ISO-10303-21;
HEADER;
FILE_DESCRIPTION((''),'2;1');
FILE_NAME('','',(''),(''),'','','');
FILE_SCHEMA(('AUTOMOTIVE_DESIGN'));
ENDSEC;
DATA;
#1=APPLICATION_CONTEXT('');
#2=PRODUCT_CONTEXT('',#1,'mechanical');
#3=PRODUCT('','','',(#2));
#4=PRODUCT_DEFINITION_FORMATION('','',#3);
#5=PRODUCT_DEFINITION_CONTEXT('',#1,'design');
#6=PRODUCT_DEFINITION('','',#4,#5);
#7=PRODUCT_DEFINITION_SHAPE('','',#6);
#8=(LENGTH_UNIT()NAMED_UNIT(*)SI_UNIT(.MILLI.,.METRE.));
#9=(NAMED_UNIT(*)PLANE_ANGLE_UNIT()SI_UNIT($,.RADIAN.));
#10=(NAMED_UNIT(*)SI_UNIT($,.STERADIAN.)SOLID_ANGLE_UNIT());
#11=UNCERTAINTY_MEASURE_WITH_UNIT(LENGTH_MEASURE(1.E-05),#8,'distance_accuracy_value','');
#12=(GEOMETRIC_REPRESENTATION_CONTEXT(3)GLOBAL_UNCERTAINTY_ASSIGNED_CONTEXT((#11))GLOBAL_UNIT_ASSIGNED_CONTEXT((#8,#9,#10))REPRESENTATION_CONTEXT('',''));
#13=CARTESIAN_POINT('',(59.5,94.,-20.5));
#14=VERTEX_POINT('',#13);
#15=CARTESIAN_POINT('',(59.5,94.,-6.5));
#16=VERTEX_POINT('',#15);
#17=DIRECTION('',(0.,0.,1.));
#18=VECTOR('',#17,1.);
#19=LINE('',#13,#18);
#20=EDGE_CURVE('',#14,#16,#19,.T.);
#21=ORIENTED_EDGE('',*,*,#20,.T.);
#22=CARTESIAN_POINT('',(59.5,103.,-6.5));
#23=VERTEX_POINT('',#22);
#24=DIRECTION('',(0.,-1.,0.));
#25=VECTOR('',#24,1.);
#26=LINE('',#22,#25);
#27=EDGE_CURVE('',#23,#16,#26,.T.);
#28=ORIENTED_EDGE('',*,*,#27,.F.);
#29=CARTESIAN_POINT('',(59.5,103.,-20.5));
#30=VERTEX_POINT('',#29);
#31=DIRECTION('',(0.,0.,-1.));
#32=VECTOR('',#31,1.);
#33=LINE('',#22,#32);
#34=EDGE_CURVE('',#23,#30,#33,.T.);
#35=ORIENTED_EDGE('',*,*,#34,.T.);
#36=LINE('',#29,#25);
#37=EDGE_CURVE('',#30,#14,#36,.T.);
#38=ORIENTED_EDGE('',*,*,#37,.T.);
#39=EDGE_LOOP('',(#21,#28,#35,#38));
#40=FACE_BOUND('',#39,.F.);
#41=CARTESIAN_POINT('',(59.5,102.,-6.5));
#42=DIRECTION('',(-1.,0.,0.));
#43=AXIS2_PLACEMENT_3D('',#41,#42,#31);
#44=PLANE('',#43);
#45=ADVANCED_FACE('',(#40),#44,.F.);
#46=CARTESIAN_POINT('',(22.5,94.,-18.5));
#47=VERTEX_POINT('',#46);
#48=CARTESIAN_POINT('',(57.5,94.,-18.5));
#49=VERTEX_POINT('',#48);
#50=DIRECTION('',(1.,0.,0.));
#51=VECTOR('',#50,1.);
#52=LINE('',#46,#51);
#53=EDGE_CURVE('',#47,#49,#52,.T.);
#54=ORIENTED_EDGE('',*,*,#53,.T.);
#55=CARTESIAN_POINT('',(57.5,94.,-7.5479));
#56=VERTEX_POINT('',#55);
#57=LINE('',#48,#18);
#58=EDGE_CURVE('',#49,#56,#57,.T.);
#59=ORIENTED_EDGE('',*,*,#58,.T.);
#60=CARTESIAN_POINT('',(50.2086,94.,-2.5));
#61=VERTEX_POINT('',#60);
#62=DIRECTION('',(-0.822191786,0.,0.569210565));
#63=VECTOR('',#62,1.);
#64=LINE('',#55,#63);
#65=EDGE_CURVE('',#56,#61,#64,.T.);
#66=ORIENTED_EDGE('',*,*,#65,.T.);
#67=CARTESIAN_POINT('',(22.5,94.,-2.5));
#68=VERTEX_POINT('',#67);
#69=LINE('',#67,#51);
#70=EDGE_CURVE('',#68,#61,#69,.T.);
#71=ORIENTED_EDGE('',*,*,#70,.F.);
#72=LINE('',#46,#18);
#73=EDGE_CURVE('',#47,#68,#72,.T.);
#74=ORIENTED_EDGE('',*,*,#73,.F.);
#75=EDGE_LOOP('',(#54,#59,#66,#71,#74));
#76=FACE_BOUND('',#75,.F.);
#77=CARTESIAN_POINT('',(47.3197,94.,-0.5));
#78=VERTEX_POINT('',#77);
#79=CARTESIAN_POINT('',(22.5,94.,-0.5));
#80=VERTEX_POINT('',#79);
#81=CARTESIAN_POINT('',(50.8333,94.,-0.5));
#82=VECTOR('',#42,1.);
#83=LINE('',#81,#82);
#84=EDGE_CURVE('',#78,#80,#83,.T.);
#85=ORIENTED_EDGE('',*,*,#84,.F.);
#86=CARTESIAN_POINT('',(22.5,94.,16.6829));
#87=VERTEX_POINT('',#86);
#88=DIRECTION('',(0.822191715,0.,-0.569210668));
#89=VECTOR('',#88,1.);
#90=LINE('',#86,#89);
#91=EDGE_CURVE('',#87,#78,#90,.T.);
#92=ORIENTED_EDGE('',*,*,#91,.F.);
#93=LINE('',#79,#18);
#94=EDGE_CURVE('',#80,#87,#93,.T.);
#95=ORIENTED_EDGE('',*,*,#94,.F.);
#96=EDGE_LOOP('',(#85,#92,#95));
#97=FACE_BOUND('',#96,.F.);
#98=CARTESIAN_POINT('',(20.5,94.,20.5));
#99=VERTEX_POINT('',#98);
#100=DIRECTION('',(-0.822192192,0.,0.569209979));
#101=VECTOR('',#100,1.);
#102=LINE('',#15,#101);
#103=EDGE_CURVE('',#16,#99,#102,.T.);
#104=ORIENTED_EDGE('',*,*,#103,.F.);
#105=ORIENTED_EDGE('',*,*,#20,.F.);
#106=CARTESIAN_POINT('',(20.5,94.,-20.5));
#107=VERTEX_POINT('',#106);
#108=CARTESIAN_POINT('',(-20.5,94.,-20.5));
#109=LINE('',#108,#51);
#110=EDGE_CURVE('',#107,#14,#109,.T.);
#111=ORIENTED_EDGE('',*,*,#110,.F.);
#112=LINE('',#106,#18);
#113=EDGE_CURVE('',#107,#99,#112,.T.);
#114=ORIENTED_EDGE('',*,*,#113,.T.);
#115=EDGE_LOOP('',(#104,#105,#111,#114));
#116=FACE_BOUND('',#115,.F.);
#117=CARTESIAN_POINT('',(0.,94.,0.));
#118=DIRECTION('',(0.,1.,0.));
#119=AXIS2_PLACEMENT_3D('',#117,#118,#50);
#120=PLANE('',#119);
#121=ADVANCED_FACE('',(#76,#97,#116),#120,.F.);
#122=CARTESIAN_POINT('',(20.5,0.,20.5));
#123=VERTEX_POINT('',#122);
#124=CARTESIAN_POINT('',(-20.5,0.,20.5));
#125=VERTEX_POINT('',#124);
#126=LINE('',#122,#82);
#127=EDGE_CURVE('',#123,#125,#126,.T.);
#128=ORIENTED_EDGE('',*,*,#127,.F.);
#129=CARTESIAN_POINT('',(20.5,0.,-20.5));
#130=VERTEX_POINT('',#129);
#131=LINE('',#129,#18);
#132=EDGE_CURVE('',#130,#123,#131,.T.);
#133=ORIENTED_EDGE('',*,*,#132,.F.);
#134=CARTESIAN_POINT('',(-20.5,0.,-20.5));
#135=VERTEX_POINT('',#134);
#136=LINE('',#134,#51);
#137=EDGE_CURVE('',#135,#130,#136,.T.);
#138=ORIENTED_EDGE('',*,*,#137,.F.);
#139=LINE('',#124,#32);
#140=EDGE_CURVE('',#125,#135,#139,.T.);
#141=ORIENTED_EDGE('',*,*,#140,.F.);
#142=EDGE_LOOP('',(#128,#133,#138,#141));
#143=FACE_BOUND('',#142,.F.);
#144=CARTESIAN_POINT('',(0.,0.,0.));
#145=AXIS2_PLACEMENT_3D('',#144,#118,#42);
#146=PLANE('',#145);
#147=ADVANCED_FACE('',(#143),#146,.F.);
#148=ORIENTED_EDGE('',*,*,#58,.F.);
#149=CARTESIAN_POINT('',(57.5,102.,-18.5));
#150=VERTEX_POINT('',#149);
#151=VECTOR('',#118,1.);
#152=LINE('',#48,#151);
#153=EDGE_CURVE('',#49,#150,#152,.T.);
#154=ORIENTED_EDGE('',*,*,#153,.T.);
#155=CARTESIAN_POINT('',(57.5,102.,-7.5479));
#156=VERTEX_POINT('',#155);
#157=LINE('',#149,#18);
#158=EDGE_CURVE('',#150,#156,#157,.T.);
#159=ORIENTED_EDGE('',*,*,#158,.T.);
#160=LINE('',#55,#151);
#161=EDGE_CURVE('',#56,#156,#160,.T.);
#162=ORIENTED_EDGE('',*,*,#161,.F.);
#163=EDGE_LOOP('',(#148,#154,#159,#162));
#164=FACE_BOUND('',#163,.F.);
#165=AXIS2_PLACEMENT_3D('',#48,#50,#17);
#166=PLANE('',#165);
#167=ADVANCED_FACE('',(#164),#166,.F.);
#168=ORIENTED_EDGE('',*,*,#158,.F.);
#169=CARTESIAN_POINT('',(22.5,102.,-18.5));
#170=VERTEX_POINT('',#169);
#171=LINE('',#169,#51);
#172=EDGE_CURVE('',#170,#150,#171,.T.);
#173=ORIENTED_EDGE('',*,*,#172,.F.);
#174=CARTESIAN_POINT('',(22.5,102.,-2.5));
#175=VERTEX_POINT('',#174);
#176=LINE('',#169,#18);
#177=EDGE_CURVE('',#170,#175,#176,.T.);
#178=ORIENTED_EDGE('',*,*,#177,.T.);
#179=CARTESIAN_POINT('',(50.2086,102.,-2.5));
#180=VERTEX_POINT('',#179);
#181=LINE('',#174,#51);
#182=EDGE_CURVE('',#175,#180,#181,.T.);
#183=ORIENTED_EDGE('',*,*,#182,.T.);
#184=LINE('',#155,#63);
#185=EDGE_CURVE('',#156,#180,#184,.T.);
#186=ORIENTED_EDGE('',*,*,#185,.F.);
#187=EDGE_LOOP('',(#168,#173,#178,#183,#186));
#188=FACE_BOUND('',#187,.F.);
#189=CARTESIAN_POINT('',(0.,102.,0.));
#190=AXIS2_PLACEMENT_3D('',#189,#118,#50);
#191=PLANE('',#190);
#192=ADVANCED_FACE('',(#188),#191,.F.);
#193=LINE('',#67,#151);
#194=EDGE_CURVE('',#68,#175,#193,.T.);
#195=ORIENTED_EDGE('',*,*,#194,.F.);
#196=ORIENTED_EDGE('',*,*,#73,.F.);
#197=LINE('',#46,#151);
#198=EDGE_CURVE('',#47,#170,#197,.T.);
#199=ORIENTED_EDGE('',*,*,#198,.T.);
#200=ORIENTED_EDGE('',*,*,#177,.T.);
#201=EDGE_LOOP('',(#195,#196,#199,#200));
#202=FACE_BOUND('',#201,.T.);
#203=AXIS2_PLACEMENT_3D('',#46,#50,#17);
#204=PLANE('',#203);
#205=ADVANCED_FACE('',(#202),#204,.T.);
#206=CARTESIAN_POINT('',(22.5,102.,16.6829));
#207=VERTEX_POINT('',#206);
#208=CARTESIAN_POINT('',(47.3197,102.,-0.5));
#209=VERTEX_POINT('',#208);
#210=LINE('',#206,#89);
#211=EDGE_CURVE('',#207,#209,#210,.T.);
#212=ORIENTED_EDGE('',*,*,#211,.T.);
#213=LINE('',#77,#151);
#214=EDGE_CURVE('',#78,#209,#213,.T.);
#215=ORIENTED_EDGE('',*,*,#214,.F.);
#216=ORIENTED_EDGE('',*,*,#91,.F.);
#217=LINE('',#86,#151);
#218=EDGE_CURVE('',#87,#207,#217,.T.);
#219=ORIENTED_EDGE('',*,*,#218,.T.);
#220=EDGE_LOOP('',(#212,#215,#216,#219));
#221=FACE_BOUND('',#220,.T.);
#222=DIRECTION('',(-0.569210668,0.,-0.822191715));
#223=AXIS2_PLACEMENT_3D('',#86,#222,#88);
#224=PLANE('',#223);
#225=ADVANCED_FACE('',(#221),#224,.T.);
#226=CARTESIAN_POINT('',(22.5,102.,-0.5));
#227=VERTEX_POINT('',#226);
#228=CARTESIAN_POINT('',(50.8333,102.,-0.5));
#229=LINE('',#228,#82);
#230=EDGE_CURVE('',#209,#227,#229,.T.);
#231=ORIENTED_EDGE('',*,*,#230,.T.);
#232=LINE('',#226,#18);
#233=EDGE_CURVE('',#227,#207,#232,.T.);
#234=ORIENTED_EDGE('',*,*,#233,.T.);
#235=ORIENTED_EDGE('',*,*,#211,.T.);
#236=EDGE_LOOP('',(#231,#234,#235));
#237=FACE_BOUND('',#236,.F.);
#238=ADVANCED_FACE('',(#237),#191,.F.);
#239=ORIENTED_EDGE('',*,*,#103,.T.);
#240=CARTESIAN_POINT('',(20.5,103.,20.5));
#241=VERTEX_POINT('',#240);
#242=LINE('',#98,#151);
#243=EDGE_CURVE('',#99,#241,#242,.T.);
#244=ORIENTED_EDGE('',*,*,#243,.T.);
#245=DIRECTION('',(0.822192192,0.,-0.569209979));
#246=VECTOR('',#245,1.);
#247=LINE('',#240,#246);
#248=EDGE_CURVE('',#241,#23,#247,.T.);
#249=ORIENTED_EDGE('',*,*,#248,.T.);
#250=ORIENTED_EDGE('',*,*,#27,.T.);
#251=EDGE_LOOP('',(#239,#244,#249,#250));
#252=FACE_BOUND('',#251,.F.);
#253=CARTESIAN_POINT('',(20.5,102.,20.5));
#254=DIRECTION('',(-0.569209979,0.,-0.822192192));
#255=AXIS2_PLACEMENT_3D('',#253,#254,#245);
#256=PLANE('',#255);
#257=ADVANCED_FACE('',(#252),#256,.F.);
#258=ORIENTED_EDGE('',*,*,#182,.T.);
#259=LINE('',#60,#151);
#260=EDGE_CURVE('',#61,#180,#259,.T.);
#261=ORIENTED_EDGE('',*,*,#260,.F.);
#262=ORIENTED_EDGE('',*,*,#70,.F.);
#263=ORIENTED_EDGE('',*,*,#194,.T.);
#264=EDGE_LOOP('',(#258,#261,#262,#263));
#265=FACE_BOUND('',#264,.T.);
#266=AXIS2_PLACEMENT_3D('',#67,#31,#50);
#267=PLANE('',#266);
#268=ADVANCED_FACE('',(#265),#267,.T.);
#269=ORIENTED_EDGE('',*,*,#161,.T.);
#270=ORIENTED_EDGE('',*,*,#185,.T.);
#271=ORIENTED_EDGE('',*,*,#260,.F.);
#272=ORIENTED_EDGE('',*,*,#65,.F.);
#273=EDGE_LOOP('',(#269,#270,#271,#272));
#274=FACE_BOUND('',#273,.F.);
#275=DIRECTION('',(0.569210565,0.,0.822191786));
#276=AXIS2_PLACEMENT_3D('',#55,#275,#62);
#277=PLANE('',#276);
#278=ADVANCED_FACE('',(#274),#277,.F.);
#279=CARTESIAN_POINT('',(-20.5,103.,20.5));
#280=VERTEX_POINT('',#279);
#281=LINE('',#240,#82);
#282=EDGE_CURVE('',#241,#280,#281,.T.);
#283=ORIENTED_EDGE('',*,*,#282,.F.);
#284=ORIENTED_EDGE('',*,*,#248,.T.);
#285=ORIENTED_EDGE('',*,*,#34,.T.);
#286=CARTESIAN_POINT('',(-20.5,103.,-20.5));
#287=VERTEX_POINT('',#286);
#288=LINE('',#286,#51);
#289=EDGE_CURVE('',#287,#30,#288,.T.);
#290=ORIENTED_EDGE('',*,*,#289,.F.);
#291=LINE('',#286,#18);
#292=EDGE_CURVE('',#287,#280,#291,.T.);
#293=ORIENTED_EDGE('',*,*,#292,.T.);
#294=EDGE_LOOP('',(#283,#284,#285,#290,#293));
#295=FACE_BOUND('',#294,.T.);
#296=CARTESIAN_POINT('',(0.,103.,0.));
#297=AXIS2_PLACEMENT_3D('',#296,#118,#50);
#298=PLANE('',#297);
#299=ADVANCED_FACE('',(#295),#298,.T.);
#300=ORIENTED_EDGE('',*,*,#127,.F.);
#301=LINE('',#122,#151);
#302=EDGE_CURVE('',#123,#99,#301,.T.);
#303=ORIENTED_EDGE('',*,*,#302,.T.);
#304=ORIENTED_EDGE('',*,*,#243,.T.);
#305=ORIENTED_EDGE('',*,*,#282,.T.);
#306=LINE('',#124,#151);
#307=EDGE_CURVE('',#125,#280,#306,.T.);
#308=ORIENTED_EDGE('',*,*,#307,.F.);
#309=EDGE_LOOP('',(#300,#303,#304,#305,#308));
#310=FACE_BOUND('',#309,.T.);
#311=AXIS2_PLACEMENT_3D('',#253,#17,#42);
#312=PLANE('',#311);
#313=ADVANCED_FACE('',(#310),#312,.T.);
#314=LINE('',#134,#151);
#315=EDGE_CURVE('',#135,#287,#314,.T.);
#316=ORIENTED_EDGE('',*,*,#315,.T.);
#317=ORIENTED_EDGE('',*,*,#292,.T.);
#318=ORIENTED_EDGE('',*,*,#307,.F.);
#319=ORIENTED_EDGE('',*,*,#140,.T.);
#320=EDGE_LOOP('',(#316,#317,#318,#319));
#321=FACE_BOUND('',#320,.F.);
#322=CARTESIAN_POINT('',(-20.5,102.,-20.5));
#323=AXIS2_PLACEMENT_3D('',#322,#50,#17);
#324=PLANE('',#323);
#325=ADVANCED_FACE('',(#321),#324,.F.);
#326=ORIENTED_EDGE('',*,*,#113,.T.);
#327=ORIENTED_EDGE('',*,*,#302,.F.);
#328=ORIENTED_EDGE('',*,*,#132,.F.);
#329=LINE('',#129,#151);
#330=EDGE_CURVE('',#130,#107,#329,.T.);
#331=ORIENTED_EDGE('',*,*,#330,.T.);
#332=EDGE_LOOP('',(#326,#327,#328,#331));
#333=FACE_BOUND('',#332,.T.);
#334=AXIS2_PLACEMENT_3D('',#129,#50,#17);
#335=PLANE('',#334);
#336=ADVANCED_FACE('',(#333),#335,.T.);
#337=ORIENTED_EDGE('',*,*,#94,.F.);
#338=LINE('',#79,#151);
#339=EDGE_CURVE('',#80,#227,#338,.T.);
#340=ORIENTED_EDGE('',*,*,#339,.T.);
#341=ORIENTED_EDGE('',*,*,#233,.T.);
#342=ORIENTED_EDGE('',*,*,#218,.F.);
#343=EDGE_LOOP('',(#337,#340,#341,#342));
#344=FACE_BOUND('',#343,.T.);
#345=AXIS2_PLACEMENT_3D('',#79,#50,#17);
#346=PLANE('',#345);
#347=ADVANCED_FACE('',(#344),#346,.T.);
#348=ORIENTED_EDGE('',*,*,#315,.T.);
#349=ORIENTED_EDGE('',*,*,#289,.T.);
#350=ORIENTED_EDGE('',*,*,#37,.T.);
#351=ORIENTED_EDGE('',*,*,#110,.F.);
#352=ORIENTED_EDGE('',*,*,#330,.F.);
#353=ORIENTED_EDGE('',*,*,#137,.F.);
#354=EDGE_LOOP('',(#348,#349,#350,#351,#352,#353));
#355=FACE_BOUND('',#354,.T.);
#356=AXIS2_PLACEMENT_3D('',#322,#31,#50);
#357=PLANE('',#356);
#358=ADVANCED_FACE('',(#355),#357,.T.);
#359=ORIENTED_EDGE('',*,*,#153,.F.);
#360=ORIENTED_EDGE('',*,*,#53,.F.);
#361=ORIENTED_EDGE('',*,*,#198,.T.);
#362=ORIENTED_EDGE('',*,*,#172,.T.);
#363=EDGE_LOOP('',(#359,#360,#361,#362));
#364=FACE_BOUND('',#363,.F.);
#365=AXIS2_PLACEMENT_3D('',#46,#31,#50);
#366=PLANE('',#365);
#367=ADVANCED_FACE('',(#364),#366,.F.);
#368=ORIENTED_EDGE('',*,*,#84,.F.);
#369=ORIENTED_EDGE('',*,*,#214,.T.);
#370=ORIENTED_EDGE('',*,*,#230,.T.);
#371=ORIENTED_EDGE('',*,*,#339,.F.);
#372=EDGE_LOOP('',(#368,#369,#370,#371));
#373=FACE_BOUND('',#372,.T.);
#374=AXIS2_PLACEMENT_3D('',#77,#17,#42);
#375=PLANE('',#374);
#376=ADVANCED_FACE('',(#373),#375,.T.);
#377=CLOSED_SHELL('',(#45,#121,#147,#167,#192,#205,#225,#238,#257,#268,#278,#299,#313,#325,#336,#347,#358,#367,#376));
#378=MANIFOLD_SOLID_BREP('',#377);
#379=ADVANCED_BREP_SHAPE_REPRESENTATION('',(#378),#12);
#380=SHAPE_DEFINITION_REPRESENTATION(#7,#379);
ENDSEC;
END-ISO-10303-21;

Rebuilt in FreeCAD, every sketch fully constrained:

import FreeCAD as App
import Part
import Sketcher

V = App.Vector

doc = App.newDocument("Part")
body = doc.addObject("PartDesign::Body", "Body")
body.AllowCompound = True

# Sketch on XZ plane
sketch1 = body.newObject("Sketcher::SketchObject", "Sketch")
sketch1.AttachmentSupport = (doc.getObject("XZ_Plane"), [""])
sketch1.MapMode = "FlatFace"
sketch1.addGeometry(Part.LineSegment(V(20, -20, 0), V(-20, -20, 0)), False)
sketch1.addGeometry(Part.LineSegment(V(-20, -20, 0), V(-20, 20, 0)), False)
sketch1.addGeometry(Part.LineSegment(V(-20, 20, 0), V(20, 20, 0)), False)
sketch1.addGeometry(Part.LineSegment(V(20, 20, 0), V(20, -20, 0)), False)
sketch1.addConstraint(Sketcher.Constraint("Coincident", 0, 2, 1, 1))
sketch1.addConstraint(Sketcher.Constraint("Coincident", 1, 2, 2, 1))
sketch1.addConstraint(Sketcher.Constraint("Coincident", 2, 2, 3, 1))
sketch1.addConstraint(Sketcher.Constraint("Coincident", 3, 2, 0, 1))
sketch1.addConstraint(Sketcher.Constraint("Horizontal", 0))
sketch1.addConstraint(Sketcher.Constraint("Vertical", 1))
sketch1.addConstraint(Sketcher.Constraint("Horizontal", 2))
sketch1.addConstraint(Sketcher.Constraint("Vertical", 3))
sketch1.addConstraint(Sketcher.Constraint("Symmetric", 0, 2, 2, 2, -1, 1))
sketch1.addConstraint(Sketcher.Constraint("Equal", 2, 1))
sketch1.addConstraint(Sketcher.Constraint("DistanceX", 0, 2, 0, 1, 41.0))
pad1 = body.newObject("PartDesign::Pad", "Pad")
pad1.Profile = sketch1
pad1.Length = 94
pad1.Reversed = True

# Sketch on XZ plane
sketch2 = body.newObject("Sketcher::SketchObject", "Sketch001")
sketch2.AttachmentSupport = (doc.getObject("XZ_Plane"), [""])
sketch2.MapMode = "FlatFace"
sketch2.AttachmentOffset = App.Placement(V(0, 0, -94), App.Rotation())
sketch2.addGeometry(Part.LineSegment(V(60, -20, 0), V(20, -20, 0)), False)
sketch2.addGeometry(Part.LineSegment(V(20, -20, 0), V(20, 20, 0)), False)
sketch2.addGeometry(Part.LineSegment(V(20, 20, 0), V(60, -6, 0)), False)
sketch2.addGeometry(Part.LineSegment(V(60, -6, 0), V(60, -20, 0)), False)
sketch2.addGeometry(Part.LineSegment(V(22, 0, 0), V(47, 0, 0)), False)
sketch2.addGeometry(Part.LineSegment(V(47, 0, 0), V(22, 17, 0)), False)
sketch2.addGeometry(Part.LineSegment(V(22, 17, 0), V(22, 0, 0)), False)
sketch2.addGeometry(Part.LineSegment(V(22, -2, 0), V(22, -18, 0)), False)
sketch2.addGeometry(Part.LineSegment(V(22, -18, 0), V(58, -18, 0)), False)
sketch2.addGeometry(Part.LineSegment(V(58, -18, 0), V(58, -8, 0)), False)
sketch2.addGeometry(Part.LineSegment(V(58, -8, 0), V(50, -2, 0)), False)
sketch2.addGeometry(Part.LineSegment(V(50, -2, 0), V(22, -2, 0)), False)
sketch2.addConstraint(Sketcher.Constraint("Coincident", 0, 2, 1, 1))
sketch2.addConstraint(Sketcher.Constraint("Coincident", 1, 2, 2, 1))
sketch2.addConstraint(Sketcher.Constraint("Coincident", 2, 2, 3, 1))
sketch2.addConstraint(Sketcher.Constraint("Coincident", 3, 2, 0, 1))
sketch2.addConstraint(Sketcher.Constraint("Coincident", 4, 2, 5, 1))
sketch2.addConstraint(Sketcher.Constraint("Coincident", 5, 2, 6, 1))
sketch2.addConstraint(Sketcher.Constraint("Coincident", 6, 2, 4, 1))
sketch2.addConstraint(Sketcher.Constraint("Coincident", 7, 2, 8, 1))
sketch2.addConstraint(Sketcher.Constraint("Coincident", 8, 2, 9, 1))
sketch2.addConstraint(Sketcher.Constraint("Coincident", 9, 2, 10, 1))
sketch2.addConstraint(Sketcher.Constraint("Coincident", 10, 2, 11, 1))
sketch2.addConstraint(Sketcher.Constraint("Coincident", 11, 2, 7, 1))
sketch2.addConstraint(Sketcher.Constraint("Horizontal", 0))
sketch2.addConstraint(Sketcher.Constraint("Vertical", 1))
sketch2.addConstraint(Sketcher.Constraint("Vertical", 3))
sketch2.addConstraint(Sketcher.Constraint("Horizontal", 4))
sketch2.addConstraint(Sketcher.Constraint("Vertical", 6))
sketch2.addConstraint(Sketcher.Constraint("Vertical", 7))
sketch2.addConstraint(Sketcher.Constraint("Horizontal", 8))
sketch2.addConstraint(Sketcher.Constraint("Vertical", 9))
sketch2.addConstraint(Sketcher.Constraint("Horizontal", 11))
sketch2.addConstraint(Sketcher.Constraint("Parallel", 2, 5))
sketch2.addConstraint(Sketcher.Constraint("Parallel", 5, 10))
sketch2.addConstraint(Sketcher.Constraint("Vertical", 6, 2, 7, 2))
sketch2.addConstraint(Sketcher.Constraint("DistanceY", 3, 2, 3, 1, 14.0))
sketch2.addConstraint(Sketcher.Constraint("DistanceX", 1, 2, 5, 2, 2.0))
sketch2.addConstraint(Sketcher.Constraint("DistanceY", 0, 2, 7, 2, 2.0))
sketch2.addConstraint(Sketcher.Constraint("DistanceX", 8, 2, 3, 2, 2.0))
sketch2.addConstraint(Sketcher.Constraint("DistanceY", 10, 2, 4, 2, 2.0))
sketch2.addConstraint(Sketcher.Constraint("DistanceX", 0, 2, 0, 1, 39.0))
sketch2.addConstraint(Sketcher.Constraint("DistanceY", 1, 1, 1, 2, 41.0))
sketch2.addConstraint(Sketcher.Constraint("DistanceY", 7, 2, 7, 1, 16.0))
sketch2.addConstraint(Sketcher.Constraint("DistanceY", 9, 2, 10, 2, 5.048))
sketch2.addConstraint(Sketcher.Constraint("DistanceX", -1, 1, 0, 2, 20.5))
sketch2.addConstraint(Sketcher.Constraint("DistanceY", 0, 2, -1, 1, 20.5))
sketch2.addConstraint(Sketcher.Constraint("DistanceY", 6, 2, 6, 1, 17.183))
pad2 = body.newObject("PartDesign::Pad", "Pad001")
pad2.Profile = sketch2
pad2.Length = 8
pad2.Reversed = True

# Sketch on XZ plane
sketch3 = body.newObject("Sketcher::SketchObject", "Sketch002")
sketch3.AttachmentSupport = (doc.getObject("XZ_Plane"), [""])
sketch3.MapMode = "FlatFace"
sketch3.AttachmentOffset = App.Placement(V(0, 0, -94), App.Rotation())
sketch3.addGeometry(Part.LineSegment(V(20, -20, 0), V(-20, -20, 0)), False)
sketch3.addGeometry(Part.LineSegment(V(-20, -20, 0), V(-20, 20, 0)), False)
sketch3.addGeometry(Part.LineSegment(V(-20, 20, 0), V(20, 20, 0)), False)
sketch3.addGeometry(Part.LineSegment(V(20, 20, 0), V(20, -20, 0)), False)
sketch3.addConstraint(Sketcher.Constraint("Coincident", 0, 2, 1, 1))
sketch3.addConstraint(Sketcher.Constraint("Coincident", 1, 2, 2, 1))
sketch3.addConstraint(Sketcher.Constraint("Coincident", 2, 2, 3, 1))
sketch3.addConstraint(Sketcher.Constraint("Coincident", 3, 2, 0, 1))
sketch3.addConstraint(Sketcher.Constraint("Horizontal", 0))
sketch3.addConstraint(Sketcher.Constraint("Vertical", 1))
sketch3.addConstraint(Sketcher.Constraint("Horizontal", 2))
sketch3.addConstraint(Sketcher.Constraint("Vertical", 3))
sketch3.addConstraint(Sketcher.Constraint("Symmetric", 0, 2, 2, 2, -1, 1))
sketch3.addConstraint(Sketcher.Constraint("Equal", 2, 1))
sketch3.addConstraint(Sketcher.Constraint("DistanceX", 0, 2, 0, 1, 41.0))
pad3 = body.newObject("PartDesign::Pad", "Pad002")
pad3.Profile = sketch3
pad3.Length = 8
pad3.Reversed = True

# Sketch on XZ plane
sketch4 = body.newObject("Sketcher::SketchObject", "Sketch003")
sketch4.AttachmentSupport = (doc.getObject("XZ_Plane"), [""])
sketch4.MapMode = "FlatFace"
sketch4.AttachmentOffset = App.Placement(V(0, 0, -102), App.Rotation())
sketch4.addGeometry(Part.LineSegment(V(60, -20, 0), V(-20, -20, 0)), False)
sketch4.addGeometry(Part.LineSegment(V(-20, -20, 0), V(-20, 20, 0)), False)
sketch4.addGeometry(Part.LineSegment(V(-20, 20, 0), V(20, 20, 0)), False)
sketch4.addGeometry(Part.LineSegment(V(20, 20, 0), V(60, -6, 0)), False)
sketch4.addGeometry(Part.LineSegment(V(60, -6, 0), V(60, -20, 0)), False)
sketch4.addConstraint(Sketcher.Constraint("Coincident", 0, 2, 1, 1))
sketch4.addConstraint(Sketcher.Constraint("Coincident", 1, 2, 2, 1))
sketch4.addConstraint(Sketcher.Constraint("Coincident", 2, 2, 3, 1))
sketch4.addConstraint(Sketcher.Constraint("Coincident", 3, 2, 4, 1))
sketch4.addConstraint(Sketcher.Constraint("Coincident", 4, 2, 0, 1))
sketch4.addConstraint(Sketcher.Constraint("Horizontal", 0))
sketch4.addConstraint(Sketcher.Constraint("Vertical", 1))
sketch4.addConstraint(Sketcher.Constraint("Horizontal", 2))
sketch4.addConstraint(Sketcher.Constraint("Vertical", 4))
sketch4.addConstraint(Sketcher.Constraint("Symmetric", 0, 2, 2, 2, -1, 1))
sketch4.addConstraint(Sketcher.Constraint("Equal", 2, 1))
sketch4.addConstraint(Sketcher.Constraint("DistanceX", 0, 2, 0, 1, 80.0))
sketch4.addConstraint(Sketcher.Constraint("DistanceX", 2, 1, 2, 2, 41.0))
sketch4.addConstraint(Sketcher.Constraint("DistanceY", 4, 2, 4, 1, 14.0))
pad4 = body.newObject("PartDesign::Pad", "Pad003")
pad4.Profile = sketch4
pad4.Length = 1
pad4.Reversed = True

doc.recompute()
